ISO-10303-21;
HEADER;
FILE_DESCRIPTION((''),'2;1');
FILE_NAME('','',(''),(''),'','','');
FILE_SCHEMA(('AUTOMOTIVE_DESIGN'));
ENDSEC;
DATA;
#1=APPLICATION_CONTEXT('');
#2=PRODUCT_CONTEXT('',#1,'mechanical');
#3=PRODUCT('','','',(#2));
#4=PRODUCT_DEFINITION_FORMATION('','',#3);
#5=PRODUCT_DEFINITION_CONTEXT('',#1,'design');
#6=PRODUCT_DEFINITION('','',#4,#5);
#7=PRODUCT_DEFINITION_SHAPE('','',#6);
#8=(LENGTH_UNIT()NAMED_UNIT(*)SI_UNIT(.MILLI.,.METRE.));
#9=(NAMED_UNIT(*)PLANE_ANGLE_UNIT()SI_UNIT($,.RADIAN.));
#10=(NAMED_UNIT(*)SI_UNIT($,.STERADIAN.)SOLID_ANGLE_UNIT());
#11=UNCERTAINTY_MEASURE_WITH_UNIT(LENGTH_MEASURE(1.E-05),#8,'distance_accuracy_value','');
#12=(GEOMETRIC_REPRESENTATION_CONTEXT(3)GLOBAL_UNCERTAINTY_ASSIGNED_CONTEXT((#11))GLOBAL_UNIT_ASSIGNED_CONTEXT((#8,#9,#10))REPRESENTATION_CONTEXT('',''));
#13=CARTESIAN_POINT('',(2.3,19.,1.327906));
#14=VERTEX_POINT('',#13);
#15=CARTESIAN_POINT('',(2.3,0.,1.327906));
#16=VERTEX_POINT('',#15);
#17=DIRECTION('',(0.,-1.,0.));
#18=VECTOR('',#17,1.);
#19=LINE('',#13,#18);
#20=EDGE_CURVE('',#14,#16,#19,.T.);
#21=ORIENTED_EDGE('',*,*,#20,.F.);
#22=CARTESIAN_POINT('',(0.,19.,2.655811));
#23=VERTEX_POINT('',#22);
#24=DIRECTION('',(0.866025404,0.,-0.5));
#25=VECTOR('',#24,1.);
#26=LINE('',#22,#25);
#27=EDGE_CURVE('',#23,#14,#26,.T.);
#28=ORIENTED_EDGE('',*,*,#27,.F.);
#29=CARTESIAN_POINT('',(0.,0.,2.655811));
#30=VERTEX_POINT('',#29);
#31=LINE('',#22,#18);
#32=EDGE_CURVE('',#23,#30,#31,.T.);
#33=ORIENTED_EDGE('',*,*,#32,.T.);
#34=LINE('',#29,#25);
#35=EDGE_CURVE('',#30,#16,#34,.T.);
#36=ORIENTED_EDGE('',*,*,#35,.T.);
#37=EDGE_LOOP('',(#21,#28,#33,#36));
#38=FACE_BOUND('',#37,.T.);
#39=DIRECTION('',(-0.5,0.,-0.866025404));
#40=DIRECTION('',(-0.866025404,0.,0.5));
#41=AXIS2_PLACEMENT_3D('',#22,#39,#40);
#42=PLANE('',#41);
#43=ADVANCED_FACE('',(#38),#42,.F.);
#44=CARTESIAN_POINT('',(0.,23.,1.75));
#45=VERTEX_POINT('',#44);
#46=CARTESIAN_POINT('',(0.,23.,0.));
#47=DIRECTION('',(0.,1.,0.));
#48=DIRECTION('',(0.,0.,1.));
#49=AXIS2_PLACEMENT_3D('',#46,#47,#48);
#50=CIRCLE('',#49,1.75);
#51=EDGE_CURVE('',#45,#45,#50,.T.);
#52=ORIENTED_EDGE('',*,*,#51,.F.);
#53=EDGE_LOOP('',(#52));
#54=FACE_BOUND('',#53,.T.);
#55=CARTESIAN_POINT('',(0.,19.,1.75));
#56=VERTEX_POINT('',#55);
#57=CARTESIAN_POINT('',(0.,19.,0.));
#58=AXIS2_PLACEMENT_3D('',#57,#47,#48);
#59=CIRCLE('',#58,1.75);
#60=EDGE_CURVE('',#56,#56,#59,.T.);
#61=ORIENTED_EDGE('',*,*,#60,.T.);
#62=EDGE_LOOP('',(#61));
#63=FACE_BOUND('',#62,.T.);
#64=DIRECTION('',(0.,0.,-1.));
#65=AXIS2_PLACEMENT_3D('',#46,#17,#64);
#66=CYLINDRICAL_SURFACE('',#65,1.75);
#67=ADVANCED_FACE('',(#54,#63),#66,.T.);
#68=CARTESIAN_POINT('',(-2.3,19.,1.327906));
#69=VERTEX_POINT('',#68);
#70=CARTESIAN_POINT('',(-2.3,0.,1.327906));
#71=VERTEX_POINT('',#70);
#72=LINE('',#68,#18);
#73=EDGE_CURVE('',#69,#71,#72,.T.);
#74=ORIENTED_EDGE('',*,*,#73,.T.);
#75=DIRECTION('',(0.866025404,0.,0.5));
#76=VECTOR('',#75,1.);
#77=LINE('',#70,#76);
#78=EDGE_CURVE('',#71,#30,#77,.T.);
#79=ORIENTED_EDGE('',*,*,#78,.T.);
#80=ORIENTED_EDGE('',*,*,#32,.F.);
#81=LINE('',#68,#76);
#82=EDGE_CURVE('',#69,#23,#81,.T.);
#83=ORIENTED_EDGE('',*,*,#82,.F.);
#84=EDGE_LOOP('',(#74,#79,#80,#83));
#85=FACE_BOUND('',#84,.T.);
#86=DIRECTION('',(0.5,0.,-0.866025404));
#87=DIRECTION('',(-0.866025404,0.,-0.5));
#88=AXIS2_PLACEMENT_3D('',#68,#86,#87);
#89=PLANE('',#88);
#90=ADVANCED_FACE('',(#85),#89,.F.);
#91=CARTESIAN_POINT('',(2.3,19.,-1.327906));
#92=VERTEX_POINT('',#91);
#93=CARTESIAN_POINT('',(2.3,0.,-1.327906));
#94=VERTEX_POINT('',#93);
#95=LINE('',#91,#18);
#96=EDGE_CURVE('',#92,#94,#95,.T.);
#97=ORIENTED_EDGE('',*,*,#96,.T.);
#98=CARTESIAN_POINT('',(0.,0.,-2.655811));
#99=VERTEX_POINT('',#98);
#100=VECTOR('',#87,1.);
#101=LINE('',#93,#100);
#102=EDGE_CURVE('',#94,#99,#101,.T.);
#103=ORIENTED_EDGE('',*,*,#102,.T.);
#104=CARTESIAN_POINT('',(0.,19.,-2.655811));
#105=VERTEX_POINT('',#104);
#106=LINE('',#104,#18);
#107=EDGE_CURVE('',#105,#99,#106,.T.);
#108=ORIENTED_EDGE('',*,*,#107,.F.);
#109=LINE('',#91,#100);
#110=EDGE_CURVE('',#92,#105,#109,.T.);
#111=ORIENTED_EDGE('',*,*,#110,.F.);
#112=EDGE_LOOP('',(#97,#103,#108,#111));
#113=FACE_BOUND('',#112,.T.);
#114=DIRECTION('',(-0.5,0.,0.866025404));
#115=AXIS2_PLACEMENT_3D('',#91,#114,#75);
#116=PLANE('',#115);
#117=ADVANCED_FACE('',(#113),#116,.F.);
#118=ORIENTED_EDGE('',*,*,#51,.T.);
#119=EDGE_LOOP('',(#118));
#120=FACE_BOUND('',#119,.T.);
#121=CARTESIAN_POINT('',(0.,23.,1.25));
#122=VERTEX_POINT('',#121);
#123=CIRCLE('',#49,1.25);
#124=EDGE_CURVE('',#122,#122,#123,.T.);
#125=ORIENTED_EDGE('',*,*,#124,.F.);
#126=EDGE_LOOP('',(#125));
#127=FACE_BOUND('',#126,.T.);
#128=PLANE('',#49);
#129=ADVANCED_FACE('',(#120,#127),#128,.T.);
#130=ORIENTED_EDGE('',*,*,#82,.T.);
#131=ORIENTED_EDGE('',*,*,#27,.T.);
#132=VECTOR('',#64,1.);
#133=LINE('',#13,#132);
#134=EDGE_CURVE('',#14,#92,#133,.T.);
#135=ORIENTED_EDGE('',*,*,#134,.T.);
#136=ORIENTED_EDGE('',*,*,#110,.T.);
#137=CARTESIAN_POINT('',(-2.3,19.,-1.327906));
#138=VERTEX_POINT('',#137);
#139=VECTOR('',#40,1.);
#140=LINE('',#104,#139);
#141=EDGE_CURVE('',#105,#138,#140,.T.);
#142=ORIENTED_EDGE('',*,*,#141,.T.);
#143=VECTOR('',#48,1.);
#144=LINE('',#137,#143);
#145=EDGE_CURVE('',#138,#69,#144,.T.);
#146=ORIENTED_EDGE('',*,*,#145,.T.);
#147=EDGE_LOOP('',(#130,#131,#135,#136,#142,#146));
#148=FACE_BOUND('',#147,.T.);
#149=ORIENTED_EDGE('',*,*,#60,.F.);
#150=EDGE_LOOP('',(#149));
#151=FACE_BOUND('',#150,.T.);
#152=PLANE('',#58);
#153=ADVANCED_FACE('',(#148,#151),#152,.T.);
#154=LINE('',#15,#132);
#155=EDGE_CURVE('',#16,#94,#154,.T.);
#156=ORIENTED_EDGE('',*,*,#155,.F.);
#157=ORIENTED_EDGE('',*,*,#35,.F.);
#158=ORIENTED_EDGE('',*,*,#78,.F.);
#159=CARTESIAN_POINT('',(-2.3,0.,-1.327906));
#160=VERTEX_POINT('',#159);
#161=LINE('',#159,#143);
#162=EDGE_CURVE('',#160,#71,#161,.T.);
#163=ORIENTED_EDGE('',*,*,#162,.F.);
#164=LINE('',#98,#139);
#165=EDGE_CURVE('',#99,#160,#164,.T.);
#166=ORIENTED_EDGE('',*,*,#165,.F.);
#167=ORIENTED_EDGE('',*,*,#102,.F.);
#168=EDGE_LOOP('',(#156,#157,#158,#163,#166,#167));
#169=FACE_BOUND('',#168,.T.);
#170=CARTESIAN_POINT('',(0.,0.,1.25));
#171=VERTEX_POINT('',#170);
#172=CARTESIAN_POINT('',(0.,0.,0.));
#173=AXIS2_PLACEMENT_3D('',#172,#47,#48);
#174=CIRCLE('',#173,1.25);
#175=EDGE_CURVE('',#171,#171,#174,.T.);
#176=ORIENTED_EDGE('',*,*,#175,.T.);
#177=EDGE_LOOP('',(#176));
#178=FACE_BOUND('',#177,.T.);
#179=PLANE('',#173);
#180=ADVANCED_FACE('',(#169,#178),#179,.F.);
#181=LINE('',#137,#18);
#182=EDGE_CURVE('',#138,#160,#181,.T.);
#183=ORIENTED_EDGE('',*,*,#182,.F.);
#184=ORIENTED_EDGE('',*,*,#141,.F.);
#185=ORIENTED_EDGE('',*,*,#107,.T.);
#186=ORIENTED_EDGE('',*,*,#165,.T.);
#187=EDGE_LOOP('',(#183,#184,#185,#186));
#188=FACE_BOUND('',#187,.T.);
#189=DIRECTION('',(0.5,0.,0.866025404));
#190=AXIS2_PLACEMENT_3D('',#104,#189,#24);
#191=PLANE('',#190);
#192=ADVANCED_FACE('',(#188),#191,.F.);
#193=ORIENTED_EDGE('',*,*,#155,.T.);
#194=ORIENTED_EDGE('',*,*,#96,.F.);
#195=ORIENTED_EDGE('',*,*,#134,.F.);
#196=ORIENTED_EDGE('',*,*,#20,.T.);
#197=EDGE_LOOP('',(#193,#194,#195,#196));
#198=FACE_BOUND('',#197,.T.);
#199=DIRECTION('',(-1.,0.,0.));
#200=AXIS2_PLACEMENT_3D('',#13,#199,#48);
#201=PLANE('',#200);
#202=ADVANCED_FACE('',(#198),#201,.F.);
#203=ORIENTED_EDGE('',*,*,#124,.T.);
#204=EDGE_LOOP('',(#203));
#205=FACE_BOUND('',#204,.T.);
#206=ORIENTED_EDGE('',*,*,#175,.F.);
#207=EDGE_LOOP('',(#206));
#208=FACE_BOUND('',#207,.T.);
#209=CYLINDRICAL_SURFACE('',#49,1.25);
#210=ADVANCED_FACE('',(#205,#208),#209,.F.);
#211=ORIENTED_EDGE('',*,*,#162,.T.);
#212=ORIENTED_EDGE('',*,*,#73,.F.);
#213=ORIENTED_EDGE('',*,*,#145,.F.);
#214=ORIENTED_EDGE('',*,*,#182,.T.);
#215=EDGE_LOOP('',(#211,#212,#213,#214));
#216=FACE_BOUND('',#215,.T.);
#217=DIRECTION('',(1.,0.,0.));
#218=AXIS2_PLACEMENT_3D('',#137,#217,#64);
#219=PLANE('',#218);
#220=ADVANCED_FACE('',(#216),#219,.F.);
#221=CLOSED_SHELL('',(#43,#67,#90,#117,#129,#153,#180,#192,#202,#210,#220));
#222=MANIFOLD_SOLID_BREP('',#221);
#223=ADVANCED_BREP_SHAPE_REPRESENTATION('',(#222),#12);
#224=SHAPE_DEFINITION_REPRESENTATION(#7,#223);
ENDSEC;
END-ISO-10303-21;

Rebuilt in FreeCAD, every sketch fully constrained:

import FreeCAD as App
import Part
import Sketcher

V = App.Vector
Q = App.Units.Quantity


def add_polygon(sketch, points):
    """Adds a closed chain of lines whose ends are joined by coincident constraints."""
    first, n = sketch.GeometryCount, len(points)
    for a, b in zip(points, points[1:] + points[:1]):
        sketch.addGeometry(Part.LineSegment(App.Vector(*a, 0), App.Vector(*b, 0)), False)
    for i in range(n):
        sketch.addConstraint(Sketcher.Constraint("Coincident", first + i, 2, first + (i + 1) % n, 1))

doc = App.newDocument("Part")
body = doc.addObject("PartDesign::Body", "Body")

sketch1 = body.newObject("Sketcher::SketchObject", "Sketch")
sketch1.AttachmentSupport = (doc.getObject("XZ_Plane"), [""])
sketch1.MapMode = "FlatFace"
add_polygon(sketch1, [(0, -2.7), (-2.3, -1.3), (-2.3, 1.3), (0, 2.7), (2.3, 1.3), (2.3, -1.3)])
sketch1.addConstraint([
    Sketcher.Constraint("Vertical", 1),
    Sketcher.Constraint("Vertical", 4),
    Sketcher.Constraint("Symmetric", 0, 2, 3, 2, -1, 1),
    Sketcher.Constraint("Symmetric", 2, 2, 5, 2, -1, 1),
    Sketcher.Constraint("PointOnObject", 2, 2, -2),
    Sketcher.Constraint("Parallel", 2, 5),
    Sketcher.Constraint("Horizontal", 1, 2, 3, 2),
    Sketcher.Constraint("Angle", 0, Q("150 deg")),
    Sketcher.Constraint("DistanceX", 0, 2, -1, 1, 2.3),
    Sketcher.Constraint("DistanceY", 1, 1, 1, 2, 2.655811),
])
pad1 = body.newObject("PartDesign::Pad", "Pad")
pad1.Profile = sketch1
pad1.Length = 19
pad1.Reversed = True

sketch2 = body.newObject("Sketcher::SketchObject", "Sketch001")
sketch2.AttachmentSupport = (doc.getObject("XZ_Plane"), [""])
sketch2.MapMode = "FlatFace"
sketch2.AttachmentOffset = App.Placement(V(0, 0, -19), App.Rotation())
sketch2.addGeometry(Part.Circle(V(0, 0, 0), V(0, 0, 1), 1.8), False)
sketch2.addConstraint([
    Sketcher.Constraint("Coincident", 0, 3, -1, 1),
    Sketcher.Constraint("Diameter", 0, 3.5),
])
pad2 = body.newObject("PartDesign::Pad", "Pad001")
pad2.Profile = sketch2
pad2.Length = 4
pad2.Reversed = True

sketch3 = body.newObject("Sketcher::SketchObject", "Sketch002")
sketch3.AttachmentSupport = (doc.getObject("XZ_Plane"), [""])
sketch3.MapMode = "FlatFace"
sketch3.AttachmentOffset = App.Placement(V(0, 0, -23), App.Rotation())
sketch3.addGeometry(Part.Circle(V(0, 0, 0), V(0, 0, 1), 1.2), False)
sketch3.addConstraint([
    Sketcher.Constraint("Coincident", 0, 3, -1, 1),
    Sketcher.Constraint("Diameter", 0, 2.5),
])
doc.recompute()
hole = body.newObject("PartDesign::Hole", "Hole")
hole.Profile = sketch3
hole.ThreadType = "None"
hole.Diameter = 2.5
hole.DepthType = "ThroughAll"
hole.Reversed = True

doc.recompute()
